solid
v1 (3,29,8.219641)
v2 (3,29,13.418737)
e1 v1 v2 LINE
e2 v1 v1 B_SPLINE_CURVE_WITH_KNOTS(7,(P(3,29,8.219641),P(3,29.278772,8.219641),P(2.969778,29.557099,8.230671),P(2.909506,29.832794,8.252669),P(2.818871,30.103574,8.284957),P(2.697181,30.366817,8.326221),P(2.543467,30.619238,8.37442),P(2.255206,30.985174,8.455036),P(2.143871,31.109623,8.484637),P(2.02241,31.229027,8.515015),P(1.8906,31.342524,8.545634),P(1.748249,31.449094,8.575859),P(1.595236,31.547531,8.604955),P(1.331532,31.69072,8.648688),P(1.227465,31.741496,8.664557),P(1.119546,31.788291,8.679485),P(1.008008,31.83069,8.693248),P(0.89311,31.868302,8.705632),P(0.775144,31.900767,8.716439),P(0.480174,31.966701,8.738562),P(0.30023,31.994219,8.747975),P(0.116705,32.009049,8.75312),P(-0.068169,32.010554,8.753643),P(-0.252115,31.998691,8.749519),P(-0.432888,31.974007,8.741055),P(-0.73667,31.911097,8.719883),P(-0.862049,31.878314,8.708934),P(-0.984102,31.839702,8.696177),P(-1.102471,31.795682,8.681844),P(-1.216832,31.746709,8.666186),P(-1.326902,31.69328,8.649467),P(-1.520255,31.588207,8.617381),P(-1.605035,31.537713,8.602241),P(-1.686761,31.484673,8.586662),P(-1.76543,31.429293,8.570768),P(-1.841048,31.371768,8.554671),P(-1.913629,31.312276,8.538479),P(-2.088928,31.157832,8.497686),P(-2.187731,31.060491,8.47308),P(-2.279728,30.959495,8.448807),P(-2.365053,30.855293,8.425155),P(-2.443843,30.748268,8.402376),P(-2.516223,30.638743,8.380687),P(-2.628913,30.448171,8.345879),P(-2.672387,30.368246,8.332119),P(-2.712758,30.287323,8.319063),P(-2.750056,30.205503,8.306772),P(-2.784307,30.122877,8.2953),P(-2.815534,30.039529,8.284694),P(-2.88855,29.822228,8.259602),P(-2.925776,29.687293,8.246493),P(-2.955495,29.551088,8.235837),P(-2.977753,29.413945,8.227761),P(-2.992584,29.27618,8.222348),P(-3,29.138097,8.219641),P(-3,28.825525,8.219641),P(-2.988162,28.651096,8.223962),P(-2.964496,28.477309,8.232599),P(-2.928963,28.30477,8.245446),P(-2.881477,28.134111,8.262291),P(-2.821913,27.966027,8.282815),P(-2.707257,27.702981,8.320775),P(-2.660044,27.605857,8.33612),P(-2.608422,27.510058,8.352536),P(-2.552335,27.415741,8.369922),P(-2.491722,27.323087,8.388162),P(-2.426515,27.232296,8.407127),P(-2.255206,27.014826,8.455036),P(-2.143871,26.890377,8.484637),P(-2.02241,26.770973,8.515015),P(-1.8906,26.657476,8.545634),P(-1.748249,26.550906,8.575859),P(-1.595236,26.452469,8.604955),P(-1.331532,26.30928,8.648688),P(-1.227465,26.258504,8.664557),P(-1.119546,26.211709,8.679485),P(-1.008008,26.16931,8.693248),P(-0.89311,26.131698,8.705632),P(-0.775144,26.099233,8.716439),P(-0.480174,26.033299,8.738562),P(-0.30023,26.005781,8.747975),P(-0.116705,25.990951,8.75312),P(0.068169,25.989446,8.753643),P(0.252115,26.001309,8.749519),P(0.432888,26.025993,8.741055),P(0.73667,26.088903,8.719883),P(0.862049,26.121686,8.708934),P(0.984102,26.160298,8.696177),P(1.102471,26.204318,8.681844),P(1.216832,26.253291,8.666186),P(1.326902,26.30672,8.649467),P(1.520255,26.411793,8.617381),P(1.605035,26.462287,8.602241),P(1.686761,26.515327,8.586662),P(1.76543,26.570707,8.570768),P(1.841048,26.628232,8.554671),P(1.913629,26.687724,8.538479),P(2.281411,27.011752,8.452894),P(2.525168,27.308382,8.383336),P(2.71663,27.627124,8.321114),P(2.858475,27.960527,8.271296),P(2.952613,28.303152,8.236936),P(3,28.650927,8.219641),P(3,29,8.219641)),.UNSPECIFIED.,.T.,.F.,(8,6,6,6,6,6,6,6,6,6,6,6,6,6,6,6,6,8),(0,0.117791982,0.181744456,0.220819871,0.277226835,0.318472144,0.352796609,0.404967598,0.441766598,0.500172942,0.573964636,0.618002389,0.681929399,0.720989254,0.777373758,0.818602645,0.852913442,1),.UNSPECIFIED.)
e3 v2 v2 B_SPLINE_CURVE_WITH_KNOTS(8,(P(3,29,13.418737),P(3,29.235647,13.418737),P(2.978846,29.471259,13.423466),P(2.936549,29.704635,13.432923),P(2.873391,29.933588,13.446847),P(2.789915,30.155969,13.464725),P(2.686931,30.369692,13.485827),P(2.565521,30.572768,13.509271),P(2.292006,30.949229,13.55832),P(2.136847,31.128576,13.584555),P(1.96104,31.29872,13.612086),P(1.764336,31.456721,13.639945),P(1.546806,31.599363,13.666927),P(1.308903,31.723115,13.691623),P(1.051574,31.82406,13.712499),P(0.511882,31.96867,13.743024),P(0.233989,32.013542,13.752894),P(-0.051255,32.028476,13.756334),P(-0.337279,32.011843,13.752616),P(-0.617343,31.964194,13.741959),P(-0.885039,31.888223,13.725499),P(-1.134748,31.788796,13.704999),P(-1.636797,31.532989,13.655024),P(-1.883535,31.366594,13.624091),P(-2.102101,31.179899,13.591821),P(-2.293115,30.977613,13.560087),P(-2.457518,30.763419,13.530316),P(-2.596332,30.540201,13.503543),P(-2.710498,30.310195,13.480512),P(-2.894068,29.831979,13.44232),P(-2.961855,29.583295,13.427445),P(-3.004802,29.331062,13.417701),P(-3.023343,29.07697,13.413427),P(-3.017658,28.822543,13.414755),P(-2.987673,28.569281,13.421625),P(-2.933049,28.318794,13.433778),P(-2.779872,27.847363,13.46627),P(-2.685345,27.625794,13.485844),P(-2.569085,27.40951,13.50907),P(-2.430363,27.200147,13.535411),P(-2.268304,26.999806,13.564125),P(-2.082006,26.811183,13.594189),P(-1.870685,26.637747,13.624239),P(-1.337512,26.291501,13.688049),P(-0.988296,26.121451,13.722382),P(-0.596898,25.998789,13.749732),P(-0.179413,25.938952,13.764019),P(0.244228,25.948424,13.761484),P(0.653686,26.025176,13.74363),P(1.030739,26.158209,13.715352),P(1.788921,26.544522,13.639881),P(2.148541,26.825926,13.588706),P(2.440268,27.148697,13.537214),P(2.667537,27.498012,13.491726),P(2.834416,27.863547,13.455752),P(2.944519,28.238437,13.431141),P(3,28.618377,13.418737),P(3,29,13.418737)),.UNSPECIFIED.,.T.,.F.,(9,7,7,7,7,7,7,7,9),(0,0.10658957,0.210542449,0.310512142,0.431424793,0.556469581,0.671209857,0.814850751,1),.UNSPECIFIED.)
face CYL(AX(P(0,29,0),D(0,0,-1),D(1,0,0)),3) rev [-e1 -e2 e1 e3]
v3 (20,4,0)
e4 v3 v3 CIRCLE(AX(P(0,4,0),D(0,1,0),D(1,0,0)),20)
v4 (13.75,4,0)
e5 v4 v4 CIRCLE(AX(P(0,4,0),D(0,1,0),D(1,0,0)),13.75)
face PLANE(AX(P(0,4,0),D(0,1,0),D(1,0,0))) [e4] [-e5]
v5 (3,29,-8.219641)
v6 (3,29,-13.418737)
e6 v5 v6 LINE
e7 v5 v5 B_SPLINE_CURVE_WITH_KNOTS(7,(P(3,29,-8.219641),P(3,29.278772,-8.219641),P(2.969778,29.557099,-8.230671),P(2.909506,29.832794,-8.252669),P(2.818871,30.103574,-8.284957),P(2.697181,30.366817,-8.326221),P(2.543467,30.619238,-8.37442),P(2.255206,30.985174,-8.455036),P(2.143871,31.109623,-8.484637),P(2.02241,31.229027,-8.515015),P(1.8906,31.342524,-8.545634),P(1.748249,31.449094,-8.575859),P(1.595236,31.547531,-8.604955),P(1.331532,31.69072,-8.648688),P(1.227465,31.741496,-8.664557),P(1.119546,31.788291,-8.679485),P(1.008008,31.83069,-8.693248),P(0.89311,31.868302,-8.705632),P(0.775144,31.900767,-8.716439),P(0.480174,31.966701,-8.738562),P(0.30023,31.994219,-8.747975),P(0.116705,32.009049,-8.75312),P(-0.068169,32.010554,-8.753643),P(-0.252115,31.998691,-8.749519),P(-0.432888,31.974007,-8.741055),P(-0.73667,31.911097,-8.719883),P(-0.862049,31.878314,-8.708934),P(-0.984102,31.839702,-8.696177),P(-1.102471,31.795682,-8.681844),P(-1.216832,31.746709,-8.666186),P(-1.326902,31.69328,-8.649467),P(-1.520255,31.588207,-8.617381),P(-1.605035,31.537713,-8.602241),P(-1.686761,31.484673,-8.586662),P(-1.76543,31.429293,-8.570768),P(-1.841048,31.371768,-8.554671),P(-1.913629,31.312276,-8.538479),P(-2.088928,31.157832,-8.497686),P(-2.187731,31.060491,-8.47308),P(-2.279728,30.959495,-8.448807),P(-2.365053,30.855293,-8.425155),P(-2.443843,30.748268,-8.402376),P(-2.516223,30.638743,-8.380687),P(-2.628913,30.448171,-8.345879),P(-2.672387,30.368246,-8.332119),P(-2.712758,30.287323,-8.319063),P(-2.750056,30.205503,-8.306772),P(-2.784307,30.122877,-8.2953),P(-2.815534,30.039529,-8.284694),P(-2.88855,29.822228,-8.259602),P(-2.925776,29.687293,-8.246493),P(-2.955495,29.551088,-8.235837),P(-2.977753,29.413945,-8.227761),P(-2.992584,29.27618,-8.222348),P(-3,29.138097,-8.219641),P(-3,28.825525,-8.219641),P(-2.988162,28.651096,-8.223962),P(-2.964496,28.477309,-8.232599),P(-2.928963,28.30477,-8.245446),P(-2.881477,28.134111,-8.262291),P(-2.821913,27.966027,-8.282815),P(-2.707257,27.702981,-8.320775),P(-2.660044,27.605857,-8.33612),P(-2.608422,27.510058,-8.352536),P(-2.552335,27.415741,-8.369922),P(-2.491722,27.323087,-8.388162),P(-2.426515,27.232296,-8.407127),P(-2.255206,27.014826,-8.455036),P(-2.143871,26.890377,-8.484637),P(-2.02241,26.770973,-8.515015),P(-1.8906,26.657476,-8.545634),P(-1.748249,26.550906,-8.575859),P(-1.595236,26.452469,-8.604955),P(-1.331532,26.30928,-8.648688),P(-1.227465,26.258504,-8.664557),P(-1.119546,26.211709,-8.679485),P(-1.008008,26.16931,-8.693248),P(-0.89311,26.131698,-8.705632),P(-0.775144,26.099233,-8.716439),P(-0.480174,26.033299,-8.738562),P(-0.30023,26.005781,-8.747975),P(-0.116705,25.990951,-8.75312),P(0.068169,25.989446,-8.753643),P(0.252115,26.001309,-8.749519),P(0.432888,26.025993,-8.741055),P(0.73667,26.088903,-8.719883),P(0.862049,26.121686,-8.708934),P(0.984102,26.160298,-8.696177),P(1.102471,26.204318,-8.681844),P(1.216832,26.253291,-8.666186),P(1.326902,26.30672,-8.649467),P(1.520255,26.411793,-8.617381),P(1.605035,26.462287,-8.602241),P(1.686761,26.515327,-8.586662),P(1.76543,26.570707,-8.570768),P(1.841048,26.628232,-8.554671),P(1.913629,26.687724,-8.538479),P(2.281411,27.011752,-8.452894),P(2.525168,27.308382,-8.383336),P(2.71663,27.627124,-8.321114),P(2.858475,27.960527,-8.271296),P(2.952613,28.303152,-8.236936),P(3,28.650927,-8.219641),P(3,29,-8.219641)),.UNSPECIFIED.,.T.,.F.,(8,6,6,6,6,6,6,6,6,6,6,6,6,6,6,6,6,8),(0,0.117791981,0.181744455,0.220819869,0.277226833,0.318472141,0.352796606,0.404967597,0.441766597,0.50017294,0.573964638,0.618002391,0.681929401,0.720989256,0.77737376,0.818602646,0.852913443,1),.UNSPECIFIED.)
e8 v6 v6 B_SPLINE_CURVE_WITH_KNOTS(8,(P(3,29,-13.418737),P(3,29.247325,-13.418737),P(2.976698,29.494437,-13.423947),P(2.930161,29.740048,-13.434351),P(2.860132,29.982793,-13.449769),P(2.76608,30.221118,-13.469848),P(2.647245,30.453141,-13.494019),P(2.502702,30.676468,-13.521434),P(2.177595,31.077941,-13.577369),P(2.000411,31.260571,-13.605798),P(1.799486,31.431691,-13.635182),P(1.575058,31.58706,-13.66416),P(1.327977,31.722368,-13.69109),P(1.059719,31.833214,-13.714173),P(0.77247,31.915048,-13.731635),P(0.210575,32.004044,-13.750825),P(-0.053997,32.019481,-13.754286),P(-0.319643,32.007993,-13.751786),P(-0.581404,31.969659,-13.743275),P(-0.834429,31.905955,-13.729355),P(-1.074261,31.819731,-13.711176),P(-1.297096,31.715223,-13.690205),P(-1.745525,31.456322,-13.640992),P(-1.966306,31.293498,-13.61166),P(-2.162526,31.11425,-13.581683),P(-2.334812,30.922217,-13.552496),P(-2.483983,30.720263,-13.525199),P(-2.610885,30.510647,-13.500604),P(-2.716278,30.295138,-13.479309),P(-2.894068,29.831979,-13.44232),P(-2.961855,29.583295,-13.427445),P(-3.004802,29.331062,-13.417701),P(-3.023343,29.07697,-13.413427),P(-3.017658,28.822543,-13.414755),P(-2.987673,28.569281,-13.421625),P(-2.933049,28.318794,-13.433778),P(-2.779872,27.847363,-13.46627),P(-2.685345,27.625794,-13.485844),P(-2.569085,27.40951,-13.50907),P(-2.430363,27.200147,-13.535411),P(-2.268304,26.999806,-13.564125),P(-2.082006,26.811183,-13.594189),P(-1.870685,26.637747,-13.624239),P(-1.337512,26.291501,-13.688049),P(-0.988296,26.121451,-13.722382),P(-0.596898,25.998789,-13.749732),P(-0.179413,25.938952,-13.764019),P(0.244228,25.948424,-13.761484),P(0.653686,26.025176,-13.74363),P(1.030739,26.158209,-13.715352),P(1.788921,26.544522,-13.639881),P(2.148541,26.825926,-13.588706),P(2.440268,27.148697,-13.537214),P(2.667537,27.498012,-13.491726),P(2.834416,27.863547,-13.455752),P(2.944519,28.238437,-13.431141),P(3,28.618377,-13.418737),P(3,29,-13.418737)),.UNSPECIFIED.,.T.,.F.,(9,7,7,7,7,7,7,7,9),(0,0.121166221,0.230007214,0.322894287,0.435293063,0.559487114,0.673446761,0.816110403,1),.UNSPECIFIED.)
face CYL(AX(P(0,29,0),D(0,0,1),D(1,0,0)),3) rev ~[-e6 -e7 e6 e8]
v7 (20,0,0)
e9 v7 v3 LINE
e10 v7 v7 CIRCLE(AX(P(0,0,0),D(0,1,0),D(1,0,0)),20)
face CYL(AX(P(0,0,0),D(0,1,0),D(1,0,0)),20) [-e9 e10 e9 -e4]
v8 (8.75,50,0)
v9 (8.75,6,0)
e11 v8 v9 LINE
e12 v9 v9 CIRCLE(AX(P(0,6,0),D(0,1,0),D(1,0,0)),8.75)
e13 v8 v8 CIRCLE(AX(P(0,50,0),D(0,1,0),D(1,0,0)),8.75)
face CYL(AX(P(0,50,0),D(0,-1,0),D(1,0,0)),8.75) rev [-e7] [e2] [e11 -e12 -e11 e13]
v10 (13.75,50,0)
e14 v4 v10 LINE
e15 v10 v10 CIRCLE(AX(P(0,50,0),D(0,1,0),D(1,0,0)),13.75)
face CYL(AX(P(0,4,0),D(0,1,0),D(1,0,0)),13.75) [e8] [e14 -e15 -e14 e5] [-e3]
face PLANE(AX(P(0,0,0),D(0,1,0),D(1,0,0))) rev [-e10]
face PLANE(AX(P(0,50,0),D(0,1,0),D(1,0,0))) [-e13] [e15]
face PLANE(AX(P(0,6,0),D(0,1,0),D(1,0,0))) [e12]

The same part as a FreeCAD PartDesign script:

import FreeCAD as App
import Part
import Sketcher
Q = App.Units.Quantity


def add_polygon(sketch, points):
    """Adds a closed chain of lines whose ends are joined by coincident constraints."""
    first, n = sketch.GeometryCount, len(points)
    for a, b in zip(points, points[1:] + points[:1]):
        sketch.addGeometry(Part.LineSegment(App.Vector(*a, 0), App.Vector(*b, 0)), False)
    for i in range(n):
        sketch.addConstraint(Sketcher.Constraint("Coincident", first + i, 2, first + (i + 1) % n, 1))

doc = App.newDocument("Part")
body = doc.addObject("PartDesign::Body", "Body")

# Sketch on XY plane
sketch1 = body.newObject("Sketcher::SketchObject", "Sketch")
sketch1.AttachmentSupport = (doc.getObject("XY_Plane"), [""])
sketch1.MapMode = "FlatFace"
add_polygon(sketch1, [(0, 0), (20, 0), (20, 4), (13.8, 4), (13.8, 50), (8.8, 50), (8.8, 6), (0, 6)])  # lines 0-7
sketch1.addConstraint([
    Sketcher.Constraint("Horizontal", 0),
    Sketcher.Constraint("Vertical", 1),
    Sketcher.Constraint("Horizontal", 2),
    Sketcher.Constraint("Vertical", 3),
    Sketcher.Constraint("Horizontal", 4),
    Sketcher.Constraint("Vertical", 5),
    Sketcher.Constraint("Horizontal", 6),
    Sketcher.Constraint("Vertical", 7),
    Sketcher.Constraint("Coincident", 7, 2, -1, 1),
    Sketcher.Constraint("DistanceX", 0, 1, 0, 2, Q("20 mm")),
    Sketcher.Constraint("DistanceX", 4, 2, 4, 1, Q("5 mm")),
    Sketcher.Constraint("DistanceY", 1, 1, 1, 2, Q("4 mm")),
    Sketcher.Constraint("DistanceY", 3, 1, 3, 2, Q("46 mm")),
    Sketcher.Constraint("DistanceY", 5, 2, 5, 1, Q("44 mm")),
    Sketcher.Constraint("DistanceX", 2, 2, 2, 1, Q("6.25 mm")),
])
revolution = body.newObject("PartDesign::Revolution", "Revolution")
revolution.Profile = sketch1
revolution.ReferenceAxis = (sketch1, ["V_Axis"])
revolution.Angle = 360

# Sketch on XY plane
sketch2 = body.newObject("Sketcher::SketchObject", "Sketch001")
sketch2.AttachmentSupport = (doc.getObject("XY_Plane"), [""])
sketch2.MapMode = "FlatFace"
sketch2.addGeometry(Part.Circle(App.Vector(0, 29, 0), App.Vector(0, 0, 1), 3), False)
sketch2.addConstraint([
    Sketcher.Constraint("PointOnObject", 0, 3, -2),
    Sketcher.Constraint("Diameter", 0, Q("6 mm")),
    Sketcher.Constraint("DistanceY", -1, 1, 0, 3, Q("29 mm")),
])
pocket1 = body.newObject("PartDesign::Pocket", "Pocket")
pocket1.Profile = sketch2
pocket1.Type = "ThroughAll"
doc.recompute()

mirrored = body.newObject("PartDesign::Mirrored", "Mirrored")
mirrored.Originals = [pocket1]
mirrored.MirrorPlane = (doc.getObject("XY_Plane"), [""])
body.Tip = mirrored

doc.recompute()
